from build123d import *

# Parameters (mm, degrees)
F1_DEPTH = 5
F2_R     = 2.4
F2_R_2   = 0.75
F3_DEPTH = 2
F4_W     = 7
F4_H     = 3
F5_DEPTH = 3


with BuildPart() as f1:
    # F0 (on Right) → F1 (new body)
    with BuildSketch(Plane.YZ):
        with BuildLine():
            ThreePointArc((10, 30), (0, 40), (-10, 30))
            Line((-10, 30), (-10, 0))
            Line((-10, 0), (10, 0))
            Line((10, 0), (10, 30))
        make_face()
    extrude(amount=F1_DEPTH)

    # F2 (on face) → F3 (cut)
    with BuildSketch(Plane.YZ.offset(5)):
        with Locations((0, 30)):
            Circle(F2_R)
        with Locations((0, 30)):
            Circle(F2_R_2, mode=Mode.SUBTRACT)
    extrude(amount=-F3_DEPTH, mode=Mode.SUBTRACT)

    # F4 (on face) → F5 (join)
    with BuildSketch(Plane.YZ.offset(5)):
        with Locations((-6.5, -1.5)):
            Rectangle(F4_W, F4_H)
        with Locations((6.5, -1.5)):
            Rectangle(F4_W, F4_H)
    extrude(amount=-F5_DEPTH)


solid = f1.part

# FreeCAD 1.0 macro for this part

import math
import FreeCAD as App
import Part
import Sketcher
Q = App.Units.Quantity


def add_polygon(sketch, points):
    """Adds a closed chain of lines whose ends are joined by coincident constraints."""
    first, n = sketch.GeometryCount, len(points)
    for a, b in zip(points, points[1:] + points[:1]):
        sketch.addGeometry(Part.LineSegment(App.Vector(*a, 0), App.Vector(*b, 0)), False)
    for i in range(n):
        sketch.addConstraint(Sketcher.Constraint("Coincident", first + i, 2, first + (i + 1) % n, 1))

doc = App.newDocument("Part")
body = doc.addObject("PartDesign::Body", "Body")

# Sketch on YZ plane
sketch1 = body.newObject("Sketcher::SketchObject", "Sketch")
sketch1.AttachmentSupport = (doc.getObject("YZ_Plane"), [""])
sketch1.MapMode = "FlatFace"
sketch1.addGeometry([
    Part.ArcOfCircle(Part.Circle(App.Vector(0, 30, 0), App.Vector(0, 0, 1), 10), math.radians(0), math.radians(180)),
    Part.LineSegment(App.Vector(-10, 30, 0), App.Vector(-10, 0, 0)),
    Part.LineSegment(App.Vector(-10, 0, 0), App.Vector(10, 0, 0)),
    Part.LineSegment(App.Vector(10, 0, 0), App.Vector(10, 30, 0)),
], False)
sketch1.addConstraint([
    Sketcher.Constraint("Tangent", 0, 2, 1, 1),
    Sketcher.Constraint("Coincident", 1, 2, 2, 1),
    Sketcher.Constraint("Coincident", 2, 2, 3, 1),
    Sketcher.Constraint("Tangent", 3, 2, 0, 1),
    Sketcher.Constraint("Vertical", 1),
    Sketcher.Constraint("Horizontal", 2),
    Sketcher.Constraint("Vertical", 3),
    Sketcher.Constraint("Symmetric", 1, 2, 2, 2, -1, 1),
    Sketcher.Constraint("Radius", 0, Q("10 mm")),
    Sketcher.Constraint("DistanceY", 1, 2, 1, 1, Q("30 mm")),
])
pad1 = body.newObject("PartDesign::Pad", "Pad")
pad1.Profile = sketch1
pad1.Length = 5

# Sketch on YZ plane
sketch2 = body.newObject("Sketcher::SketchObject", "Sketch001")
sketch2.AttachmentSupport = (doc.getObject("YZ_Plane"), [""])
sketch2.MapMode = "FlatFace"
sketch2.AttachmentOffset = App.Placement(App.Vector(0, 0, 5), App.Rotation())
sketch2.addGeometry([
    Part.Circle(App.Vector(0, 30, 0), App.Vector(0, 0, 1), 2.4),
    Part.Circle(App.Vector(0, 30, 0), App.Vector(0, 0, 1), 0.8),
], False)
sketch2.addConstraint([
    Sketcher.Constraint("Coincident", 1, 3, 0, 3),
    Sketcher.Constraint("PointOnObject", 0, 3, -2),
    Sketcher.Constraint("Diameter", 0, Q("4.8 mm")),
    Sketcher.Constraint("Diameter", 1, Q("1.5 mm")),
    Sketcher.Constraint("DistanceY", -1, 1, 0, 3, Q("30 mm")),
])
pocket1 = body.newObject("PartDesign::Pocket", "Pocket")
pocket1.Profile = sketch2
pocket1.Length = 2

# Sketch on YZ plane
sketch3 = body.newObject("Sketcher::SketchObject", "Sketch002")
sketch3.AttachmentSupport = (doc.getObject("YZ_Plane"), [""])
sketch3.MapMode = "FlatFace"
sketch3.AttachmentOffset = App.Placement(App.Vector(0, 0, 5), App.Rotation())
add_polygon(sketch3, [(-10, 0), (-10, -3), (-3, -3), (-3, 0)])  # lines 0-3
add_polygon(sketch3, [(3, 0), (3, -3), (10, -3), (10, 0)])  # lines 4-7
sketch3.addConstraint([
    Sketcher.Constraint("Vertical", 0),
    Sketcher.Constraint("Horizontal", 1),
    Sketcher.Constraint("Vertical", 2),
    Sketcher.Constraint("Horizontal", 3),
    Sketcher.Constraint("Vertical", 4),
    Sketcher.Constraint("Horizontal", 5),
    Sketcher.Constraint("Vertical", 6),
    Sketcher.Constraint("Horizontal", 7),
    Sketcher.Constraint("Symmetric", 3, 2, 6, 2, -1, 1),
    Sketcher.Constraint("Symmetric", 1, 2, 4, 2, -2),
    Sketcher.Constraint("PointOnObject", 2, 2, -1),
    Sketcher.Constraint("DistanceX", 1, 1, 1, 2, Q("7 mm")),
    Sketcher.Constraint("DistanceY", 0, 2, 0, 1, Q("3 mm")),
    Sketcher.Constraint("DistanceX", 0, 2, -1, 1, Q("10 mm")),
])
pad2 = body.newObject("PartDesign::Pad", "Pad001")
pad2.Profile = sketch3
pad2.Length = 3
pad2.Reversed = True

doc.recompute()
